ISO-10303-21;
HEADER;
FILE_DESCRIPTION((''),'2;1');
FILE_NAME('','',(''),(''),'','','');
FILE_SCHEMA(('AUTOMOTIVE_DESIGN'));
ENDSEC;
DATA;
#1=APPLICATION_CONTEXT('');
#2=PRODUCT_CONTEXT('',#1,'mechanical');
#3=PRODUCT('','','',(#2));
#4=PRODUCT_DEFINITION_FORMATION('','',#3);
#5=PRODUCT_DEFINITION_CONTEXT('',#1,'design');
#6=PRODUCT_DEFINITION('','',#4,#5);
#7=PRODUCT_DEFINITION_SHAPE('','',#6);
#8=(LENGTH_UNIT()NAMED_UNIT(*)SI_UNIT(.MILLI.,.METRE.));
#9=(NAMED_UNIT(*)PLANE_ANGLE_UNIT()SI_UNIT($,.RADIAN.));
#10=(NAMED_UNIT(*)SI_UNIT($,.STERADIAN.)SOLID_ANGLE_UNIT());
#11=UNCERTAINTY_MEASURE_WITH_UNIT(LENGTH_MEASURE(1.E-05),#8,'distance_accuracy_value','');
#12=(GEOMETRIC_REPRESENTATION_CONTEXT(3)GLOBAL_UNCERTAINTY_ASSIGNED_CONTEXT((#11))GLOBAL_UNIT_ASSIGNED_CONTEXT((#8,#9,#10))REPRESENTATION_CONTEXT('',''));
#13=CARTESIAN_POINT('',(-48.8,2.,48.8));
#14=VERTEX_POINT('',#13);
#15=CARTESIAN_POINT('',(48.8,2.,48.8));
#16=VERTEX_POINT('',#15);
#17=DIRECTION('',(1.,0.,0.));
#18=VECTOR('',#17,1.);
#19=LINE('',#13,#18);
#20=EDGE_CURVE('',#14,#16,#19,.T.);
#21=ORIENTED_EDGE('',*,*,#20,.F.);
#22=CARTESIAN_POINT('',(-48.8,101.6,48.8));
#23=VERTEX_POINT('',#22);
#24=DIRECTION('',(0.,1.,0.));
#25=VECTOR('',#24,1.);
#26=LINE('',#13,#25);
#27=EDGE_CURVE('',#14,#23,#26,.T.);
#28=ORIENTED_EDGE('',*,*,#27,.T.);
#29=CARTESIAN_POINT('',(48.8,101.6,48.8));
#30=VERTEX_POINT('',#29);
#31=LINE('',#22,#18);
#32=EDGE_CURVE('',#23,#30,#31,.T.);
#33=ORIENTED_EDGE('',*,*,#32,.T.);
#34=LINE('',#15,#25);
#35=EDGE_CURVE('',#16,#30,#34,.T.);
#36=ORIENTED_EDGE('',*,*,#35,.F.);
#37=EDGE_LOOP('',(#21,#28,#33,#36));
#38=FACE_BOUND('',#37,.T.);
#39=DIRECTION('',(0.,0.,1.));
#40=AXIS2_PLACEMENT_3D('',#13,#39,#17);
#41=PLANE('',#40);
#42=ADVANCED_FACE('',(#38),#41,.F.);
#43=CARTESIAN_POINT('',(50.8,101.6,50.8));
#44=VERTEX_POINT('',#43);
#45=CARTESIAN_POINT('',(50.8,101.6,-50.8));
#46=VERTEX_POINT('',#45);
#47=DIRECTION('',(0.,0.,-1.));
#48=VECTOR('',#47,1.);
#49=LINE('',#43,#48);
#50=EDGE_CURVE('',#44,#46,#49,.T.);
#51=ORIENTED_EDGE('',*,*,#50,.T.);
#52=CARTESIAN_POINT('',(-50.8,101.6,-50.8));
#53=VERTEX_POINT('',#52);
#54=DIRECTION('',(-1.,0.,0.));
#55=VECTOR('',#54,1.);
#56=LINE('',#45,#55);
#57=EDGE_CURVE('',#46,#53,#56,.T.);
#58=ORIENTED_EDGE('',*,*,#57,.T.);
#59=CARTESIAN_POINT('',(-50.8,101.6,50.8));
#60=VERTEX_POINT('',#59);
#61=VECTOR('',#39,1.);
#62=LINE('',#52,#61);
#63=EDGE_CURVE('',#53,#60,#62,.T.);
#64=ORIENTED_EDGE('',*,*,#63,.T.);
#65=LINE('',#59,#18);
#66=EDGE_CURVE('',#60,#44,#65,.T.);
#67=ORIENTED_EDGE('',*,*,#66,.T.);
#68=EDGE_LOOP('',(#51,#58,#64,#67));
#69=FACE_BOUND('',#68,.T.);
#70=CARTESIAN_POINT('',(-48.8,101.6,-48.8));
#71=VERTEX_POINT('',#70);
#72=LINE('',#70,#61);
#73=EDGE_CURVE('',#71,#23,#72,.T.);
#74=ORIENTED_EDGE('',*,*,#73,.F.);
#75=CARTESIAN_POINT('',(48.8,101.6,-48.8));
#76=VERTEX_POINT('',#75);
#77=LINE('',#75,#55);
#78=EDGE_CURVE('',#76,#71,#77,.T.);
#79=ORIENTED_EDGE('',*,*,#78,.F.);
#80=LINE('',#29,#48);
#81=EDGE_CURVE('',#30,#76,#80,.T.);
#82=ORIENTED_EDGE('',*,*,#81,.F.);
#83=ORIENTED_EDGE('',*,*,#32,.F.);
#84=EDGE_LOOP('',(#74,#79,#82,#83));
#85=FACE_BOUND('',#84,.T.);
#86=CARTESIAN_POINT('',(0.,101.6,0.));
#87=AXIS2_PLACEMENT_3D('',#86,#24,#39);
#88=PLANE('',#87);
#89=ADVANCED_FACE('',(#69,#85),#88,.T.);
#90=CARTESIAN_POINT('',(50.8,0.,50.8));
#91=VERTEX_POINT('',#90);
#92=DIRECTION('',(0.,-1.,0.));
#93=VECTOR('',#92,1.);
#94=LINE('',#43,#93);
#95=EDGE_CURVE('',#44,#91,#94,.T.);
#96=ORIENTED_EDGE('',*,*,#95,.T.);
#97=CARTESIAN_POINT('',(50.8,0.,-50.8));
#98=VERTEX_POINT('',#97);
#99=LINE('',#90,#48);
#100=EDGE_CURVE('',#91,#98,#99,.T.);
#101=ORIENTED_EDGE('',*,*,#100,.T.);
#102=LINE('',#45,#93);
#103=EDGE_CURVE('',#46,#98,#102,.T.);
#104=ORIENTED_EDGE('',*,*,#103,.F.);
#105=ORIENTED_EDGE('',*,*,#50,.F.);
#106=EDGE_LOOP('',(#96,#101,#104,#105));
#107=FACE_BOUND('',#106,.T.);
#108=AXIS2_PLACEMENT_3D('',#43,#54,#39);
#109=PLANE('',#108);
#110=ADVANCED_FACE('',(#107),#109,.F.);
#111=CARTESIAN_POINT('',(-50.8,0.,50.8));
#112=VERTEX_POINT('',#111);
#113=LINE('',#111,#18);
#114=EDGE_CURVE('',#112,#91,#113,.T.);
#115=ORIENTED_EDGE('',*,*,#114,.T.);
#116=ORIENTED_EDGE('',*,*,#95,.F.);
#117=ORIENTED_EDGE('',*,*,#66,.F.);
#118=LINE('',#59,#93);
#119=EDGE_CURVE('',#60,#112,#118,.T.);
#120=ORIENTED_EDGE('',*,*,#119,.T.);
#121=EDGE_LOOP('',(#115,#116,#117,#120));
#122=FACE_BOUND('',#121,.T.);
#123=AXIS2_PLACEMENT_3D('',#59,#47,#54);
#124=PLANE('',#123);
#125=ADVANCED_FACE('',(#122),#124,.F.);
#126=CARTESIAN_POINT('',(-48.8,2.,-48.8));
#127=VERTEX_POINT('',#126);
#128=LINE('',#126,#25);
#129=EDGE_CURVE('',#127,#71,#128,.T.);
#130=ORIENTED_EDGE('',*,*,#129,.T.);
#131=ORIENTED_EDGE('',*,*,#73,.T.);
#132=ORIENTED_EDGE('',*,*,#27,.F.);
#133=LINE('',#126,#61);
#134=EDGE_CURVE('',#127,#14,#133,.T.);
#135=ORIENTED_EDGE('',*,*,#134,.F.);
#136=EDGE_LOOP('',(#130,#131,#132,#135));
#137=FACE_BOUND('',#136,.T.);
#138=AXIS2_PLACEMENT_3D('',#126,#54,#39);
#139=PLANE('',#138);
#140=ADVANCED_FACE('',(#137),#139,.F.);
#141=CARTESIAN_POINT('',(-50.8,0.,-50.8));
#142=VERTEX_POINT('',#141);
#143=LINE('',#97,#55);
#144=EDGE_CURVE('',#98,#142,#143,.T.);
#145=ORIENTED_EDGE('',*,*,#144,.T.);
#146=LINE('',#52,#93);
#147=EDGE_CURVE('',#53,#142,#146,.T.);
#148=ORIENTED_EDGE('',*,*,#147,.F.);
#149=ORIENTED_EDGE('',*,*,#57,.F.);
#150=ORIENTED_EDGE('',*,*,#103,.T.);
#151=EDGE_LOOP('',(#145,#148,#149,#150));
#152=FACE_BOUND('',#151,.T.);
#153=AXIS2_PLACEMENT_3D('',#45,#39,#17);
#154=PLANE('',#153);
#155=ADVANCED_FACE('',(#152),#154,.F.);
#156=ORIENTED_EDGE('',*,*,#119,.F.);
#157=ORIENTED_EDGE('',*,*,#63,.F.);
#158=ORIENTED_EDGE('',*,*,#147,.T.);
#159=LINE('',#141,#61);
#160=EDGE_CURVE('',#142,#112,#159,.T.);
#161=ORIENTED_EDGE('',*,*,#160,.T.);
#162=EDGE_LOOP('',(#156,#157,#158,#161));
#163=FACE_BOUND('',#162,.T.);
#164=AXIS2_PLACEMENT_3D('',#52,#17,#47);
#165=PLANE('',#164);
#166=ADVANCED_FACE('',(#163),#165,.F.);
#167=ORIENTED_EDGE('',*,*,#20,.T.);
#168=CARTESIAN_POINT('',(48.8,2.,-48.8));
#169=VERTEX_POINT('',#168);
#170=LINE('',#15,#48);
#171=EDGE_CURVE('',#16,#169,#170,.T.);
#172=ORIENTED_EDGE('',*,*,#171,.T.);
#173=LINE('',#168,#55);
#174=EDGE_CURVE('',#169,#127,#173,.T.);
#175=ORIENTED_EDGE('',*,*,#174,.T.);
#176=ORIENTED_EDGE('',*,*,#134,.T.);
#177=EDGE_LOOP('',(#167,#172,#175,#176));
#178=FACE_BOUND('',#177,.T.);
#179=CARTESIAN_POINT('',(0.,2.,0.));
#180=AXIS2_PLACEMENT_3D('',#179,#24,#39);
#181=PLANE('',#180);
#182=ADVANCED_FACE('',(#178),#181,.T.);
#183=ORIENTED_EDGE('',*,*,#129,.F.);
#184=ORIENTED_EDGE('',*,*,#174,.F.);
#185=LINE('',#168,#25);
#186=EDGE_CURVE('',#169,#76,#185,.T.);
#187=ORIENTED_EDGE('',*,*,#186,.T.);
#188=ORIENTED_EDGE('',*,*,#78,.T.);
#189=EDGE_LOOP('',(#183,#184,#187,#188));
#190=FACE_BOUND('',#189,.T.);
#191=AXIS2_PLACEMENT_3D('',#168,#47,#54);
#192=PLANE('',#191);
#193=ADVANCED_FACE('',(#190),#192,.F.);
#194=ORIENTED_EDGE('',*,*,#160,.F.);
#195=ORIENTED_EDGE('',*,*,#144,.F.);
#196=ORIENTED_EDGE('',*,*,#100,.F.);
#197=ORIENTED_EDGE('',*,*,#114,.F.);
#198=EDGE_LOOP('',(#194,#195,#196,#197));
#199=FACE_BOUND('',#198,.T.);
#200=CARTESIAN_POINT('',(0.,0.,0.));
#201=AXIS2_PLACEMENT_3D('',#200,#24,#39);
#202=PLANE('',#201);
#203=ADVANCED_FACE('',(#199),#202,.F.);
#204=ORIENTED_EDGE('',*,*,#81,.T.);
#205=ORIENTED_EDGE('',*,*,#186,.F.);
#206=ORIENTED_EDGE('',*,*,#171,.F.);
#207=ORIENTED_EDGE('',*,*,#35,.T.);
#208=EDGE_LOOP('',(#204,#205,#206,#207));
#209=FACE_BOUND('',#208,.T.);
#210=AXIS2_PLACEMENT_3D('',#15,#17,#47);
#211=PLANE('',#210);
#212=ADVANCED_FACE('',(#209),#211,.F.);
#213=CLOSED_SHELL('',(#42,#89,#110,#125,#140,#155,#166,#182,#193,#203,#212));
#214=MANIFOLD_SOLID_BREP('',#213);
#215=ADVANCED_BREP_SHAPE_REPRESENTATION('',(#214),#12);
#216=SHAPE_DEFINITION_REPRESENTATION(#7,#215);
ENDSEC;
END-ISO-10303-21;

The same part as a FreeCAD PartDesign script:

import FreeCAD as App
import Part
import Sketcher

V = App.Vector
Q = App.Units.Quantity

doc = App.newDocument("Part")
params = doc.addObject("Spreadsheet::Sheet", "Params")
for row, (alias, value) in enumerate([
    ("sketch1_width", "101.6 mm"),
    ("pad1_length", "101.6 mm"),
    ("sketch2_width", "97.6 mm"),
    ("pocket1_length", "99.6 mm"),
], start=1):
    params.set(f"A{row}", alias)
    params.set(f"B{row}", "=" + value)
    params.setAlias(f"B{row}", alias)

body = doc.addObject("PartDesign::Body", "Body")

# Sketch on XZ plane
sketch1 = doc.addObject("Sketcher::SketchObject", "Sketch")
body.addObject(sketch1)
sketch1.AttachmentSupport = (doc.XZ_Plane, [""])
sketch1.MapMode = "FlatFace"
sketch1.addGeometry(Part.LineSegment(V(-51, -51, 0), V(-51, 51, 0)), False)
sketch1.addGeometry(Part.LineSegment(V(-51, 51, 0), V(51, 51, 0)), False)
sketch1.addGeometry(Part.LineSegment(V(51, 51, 0), V(51, -51, 0)), False)
sketch1.addGeometry(Part.LineSegment(V(51, -51, 0), V(-51, -51, 0)), False)
sketch1.addConstraint(Sketcher.Constraint("Coincident", 0, 2, 1, 1))
sketch1.addConstraint(Sketcher.Constraint("Coincident", 1, 2, 2, 1))
sketch1.addConstraint(Sketcher.Constraint("Coincident", 2, 2, 3, 1))
sketch1.addConstraint(Sketcher.Constraint("Coincident", 3, 2, 0, 1))
sketch1.addConstraint(Sketcher.Constraint("Vertical", 0))
sketch1.addConstraint(Sketcher.Constraint("Horizontal", 1))
sketch1.addConstraint(Sketcher.Constraint("Vertical", 2))
sketch1.addConstraint(Sketcher.Constraint("Horizontal", 3))
sketch1.addConstraint(Sketcher.Constraint("Symmetric", 0, 2, 2, 2, -1, 1))
sketch1.addConstraint(Sketcher.Constraint("Equal", 3, 0))
sketch1.addConstraint(Sketcher.Constraint("DistanceX", 1, 1, 1, 2, Q("101.6 mm")))
sketch1.setExpression("Constraints[10]", "Params.sketch1_width")
pad1 = doc.addObject("PartDesign::Pad", "Pad")
body.addObject(pad1)
pad1.Profile = sketch1
pad1.setExpression("Length", "Params.pad1_length")
pad1.Reversed = True

# Sketch on XZ plane
sketch2 = doc.addObject("Sketcher::SketchObject", "Sketch001")
body.addObject(sketch2)
sketch2.AttachmentSupport = (doc.XZ_Plane, [""])
sketch2.MapMode = "FlatFace"
sketch2.AttachmentOffset = App.Placement(V(0, 0, -101.6), App.Rotation())
sketch2.addGeometry(Part.LineSegment(V(-49, -49, 0), V(-49, 49, 0)), False)
sketch2.addGeometry(Part.LineSegment(V(-49, 49, 0), V(49, 49, 0)), False)
sketch2.addGeometry(Part.LineSegment(V(49, 49, 0), V(49, -49, 0)), False)
sketch2.addGeometry(Part.LineSegment(V(49, -49, 0), V(-49, -49, 0)), False)
sketch2.addConstraint(Sketcher.Constraint("Coincident", 0, 2, 1, 1))
sketch2.addConstraint(Sketcher.Constraint("Coincident", 1, 2, 2, 1))
sketch2.addConstraint(Sketcher.Constraint("Coincident", 2, 2, 3, 1))
sketch2.addConstraint(Sketcher.Constraint("Coincident", 3, 2, 0, 1))
sketch2.addConstraint(Sketcher.Constraint("Vertical", 0))
sketch2.addConstraint(Sketcher.Constraint("Horizontal", 1))
sketch2.addConstraint(Sketcher.Constraint("Vertical", 2))
sketch2.addConstraint(Sketcher.Constraint("Horizontal", 3))
sketch2.addConstraint(Sketcher.Constraint("Symmetric", 0, 2, 2, 2, -1, 1))
sketch2.addConstraint(Sketcher.Constraint("Equal", 3, 0))
sketch2.addConstraint(Sketcher.Constraint("DistanceX", 1, 1, 1, 2, Q("97.6 mm")))
sketch2.setExpression("Constraints[10]", "Params.sketch2_width")
pocket1 = doc.addObject("PartDesign::Pocket", "Pocket")
body.addObject(pocket1)
pocket1.Profile = sketch2
pocket1.setExpression("Length", "Params.pocket1_length")
pocket1.Reversed = True

doc.recompute()
